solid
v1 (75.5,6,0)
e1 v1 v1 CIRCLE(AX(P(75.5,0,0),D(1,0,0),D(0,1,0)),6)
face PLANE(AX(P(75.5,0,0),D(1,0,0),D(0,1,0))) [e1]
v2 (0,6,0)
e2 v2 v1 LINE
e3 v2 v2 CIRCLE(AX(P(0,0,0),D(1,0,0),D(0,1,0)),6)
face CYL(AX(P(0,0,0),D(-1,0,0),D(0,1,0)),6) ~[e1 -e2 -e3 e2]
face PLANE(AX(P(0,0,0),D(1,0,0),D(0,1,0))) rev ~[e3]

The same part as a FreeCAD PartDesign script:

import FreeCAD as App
import Part
import Sketcher

doc = App.newDocument("Part")
body = doc.addObject("PartDesign::Body", "Body")

# Sketch on YZ plane
sketch1 = body.newObject("Sketcher::SketchObject", "Sketch")
sketch1.AttachmentSupport = (doc.getObject("YZ_Plane"), [""])
sketch1.MapMode = "FlatFace"
sketch1.addGeometry(Part.Circle(App.Vector(0, 0, 0), App.Vector(0, 0, 1), 6), False)
sketch1.addConstraint([
    Sketcher.Constraint("Coincident", 0, 3, -1, 1),
    Sketcher.Constraint("Diameter", 0, 12.0),
])
pad1 = body.newObject("PartDesign::Pad", "Pad")
pad1.Profile = sketch1
pad1.Length = 75.5

doc.recompute()
